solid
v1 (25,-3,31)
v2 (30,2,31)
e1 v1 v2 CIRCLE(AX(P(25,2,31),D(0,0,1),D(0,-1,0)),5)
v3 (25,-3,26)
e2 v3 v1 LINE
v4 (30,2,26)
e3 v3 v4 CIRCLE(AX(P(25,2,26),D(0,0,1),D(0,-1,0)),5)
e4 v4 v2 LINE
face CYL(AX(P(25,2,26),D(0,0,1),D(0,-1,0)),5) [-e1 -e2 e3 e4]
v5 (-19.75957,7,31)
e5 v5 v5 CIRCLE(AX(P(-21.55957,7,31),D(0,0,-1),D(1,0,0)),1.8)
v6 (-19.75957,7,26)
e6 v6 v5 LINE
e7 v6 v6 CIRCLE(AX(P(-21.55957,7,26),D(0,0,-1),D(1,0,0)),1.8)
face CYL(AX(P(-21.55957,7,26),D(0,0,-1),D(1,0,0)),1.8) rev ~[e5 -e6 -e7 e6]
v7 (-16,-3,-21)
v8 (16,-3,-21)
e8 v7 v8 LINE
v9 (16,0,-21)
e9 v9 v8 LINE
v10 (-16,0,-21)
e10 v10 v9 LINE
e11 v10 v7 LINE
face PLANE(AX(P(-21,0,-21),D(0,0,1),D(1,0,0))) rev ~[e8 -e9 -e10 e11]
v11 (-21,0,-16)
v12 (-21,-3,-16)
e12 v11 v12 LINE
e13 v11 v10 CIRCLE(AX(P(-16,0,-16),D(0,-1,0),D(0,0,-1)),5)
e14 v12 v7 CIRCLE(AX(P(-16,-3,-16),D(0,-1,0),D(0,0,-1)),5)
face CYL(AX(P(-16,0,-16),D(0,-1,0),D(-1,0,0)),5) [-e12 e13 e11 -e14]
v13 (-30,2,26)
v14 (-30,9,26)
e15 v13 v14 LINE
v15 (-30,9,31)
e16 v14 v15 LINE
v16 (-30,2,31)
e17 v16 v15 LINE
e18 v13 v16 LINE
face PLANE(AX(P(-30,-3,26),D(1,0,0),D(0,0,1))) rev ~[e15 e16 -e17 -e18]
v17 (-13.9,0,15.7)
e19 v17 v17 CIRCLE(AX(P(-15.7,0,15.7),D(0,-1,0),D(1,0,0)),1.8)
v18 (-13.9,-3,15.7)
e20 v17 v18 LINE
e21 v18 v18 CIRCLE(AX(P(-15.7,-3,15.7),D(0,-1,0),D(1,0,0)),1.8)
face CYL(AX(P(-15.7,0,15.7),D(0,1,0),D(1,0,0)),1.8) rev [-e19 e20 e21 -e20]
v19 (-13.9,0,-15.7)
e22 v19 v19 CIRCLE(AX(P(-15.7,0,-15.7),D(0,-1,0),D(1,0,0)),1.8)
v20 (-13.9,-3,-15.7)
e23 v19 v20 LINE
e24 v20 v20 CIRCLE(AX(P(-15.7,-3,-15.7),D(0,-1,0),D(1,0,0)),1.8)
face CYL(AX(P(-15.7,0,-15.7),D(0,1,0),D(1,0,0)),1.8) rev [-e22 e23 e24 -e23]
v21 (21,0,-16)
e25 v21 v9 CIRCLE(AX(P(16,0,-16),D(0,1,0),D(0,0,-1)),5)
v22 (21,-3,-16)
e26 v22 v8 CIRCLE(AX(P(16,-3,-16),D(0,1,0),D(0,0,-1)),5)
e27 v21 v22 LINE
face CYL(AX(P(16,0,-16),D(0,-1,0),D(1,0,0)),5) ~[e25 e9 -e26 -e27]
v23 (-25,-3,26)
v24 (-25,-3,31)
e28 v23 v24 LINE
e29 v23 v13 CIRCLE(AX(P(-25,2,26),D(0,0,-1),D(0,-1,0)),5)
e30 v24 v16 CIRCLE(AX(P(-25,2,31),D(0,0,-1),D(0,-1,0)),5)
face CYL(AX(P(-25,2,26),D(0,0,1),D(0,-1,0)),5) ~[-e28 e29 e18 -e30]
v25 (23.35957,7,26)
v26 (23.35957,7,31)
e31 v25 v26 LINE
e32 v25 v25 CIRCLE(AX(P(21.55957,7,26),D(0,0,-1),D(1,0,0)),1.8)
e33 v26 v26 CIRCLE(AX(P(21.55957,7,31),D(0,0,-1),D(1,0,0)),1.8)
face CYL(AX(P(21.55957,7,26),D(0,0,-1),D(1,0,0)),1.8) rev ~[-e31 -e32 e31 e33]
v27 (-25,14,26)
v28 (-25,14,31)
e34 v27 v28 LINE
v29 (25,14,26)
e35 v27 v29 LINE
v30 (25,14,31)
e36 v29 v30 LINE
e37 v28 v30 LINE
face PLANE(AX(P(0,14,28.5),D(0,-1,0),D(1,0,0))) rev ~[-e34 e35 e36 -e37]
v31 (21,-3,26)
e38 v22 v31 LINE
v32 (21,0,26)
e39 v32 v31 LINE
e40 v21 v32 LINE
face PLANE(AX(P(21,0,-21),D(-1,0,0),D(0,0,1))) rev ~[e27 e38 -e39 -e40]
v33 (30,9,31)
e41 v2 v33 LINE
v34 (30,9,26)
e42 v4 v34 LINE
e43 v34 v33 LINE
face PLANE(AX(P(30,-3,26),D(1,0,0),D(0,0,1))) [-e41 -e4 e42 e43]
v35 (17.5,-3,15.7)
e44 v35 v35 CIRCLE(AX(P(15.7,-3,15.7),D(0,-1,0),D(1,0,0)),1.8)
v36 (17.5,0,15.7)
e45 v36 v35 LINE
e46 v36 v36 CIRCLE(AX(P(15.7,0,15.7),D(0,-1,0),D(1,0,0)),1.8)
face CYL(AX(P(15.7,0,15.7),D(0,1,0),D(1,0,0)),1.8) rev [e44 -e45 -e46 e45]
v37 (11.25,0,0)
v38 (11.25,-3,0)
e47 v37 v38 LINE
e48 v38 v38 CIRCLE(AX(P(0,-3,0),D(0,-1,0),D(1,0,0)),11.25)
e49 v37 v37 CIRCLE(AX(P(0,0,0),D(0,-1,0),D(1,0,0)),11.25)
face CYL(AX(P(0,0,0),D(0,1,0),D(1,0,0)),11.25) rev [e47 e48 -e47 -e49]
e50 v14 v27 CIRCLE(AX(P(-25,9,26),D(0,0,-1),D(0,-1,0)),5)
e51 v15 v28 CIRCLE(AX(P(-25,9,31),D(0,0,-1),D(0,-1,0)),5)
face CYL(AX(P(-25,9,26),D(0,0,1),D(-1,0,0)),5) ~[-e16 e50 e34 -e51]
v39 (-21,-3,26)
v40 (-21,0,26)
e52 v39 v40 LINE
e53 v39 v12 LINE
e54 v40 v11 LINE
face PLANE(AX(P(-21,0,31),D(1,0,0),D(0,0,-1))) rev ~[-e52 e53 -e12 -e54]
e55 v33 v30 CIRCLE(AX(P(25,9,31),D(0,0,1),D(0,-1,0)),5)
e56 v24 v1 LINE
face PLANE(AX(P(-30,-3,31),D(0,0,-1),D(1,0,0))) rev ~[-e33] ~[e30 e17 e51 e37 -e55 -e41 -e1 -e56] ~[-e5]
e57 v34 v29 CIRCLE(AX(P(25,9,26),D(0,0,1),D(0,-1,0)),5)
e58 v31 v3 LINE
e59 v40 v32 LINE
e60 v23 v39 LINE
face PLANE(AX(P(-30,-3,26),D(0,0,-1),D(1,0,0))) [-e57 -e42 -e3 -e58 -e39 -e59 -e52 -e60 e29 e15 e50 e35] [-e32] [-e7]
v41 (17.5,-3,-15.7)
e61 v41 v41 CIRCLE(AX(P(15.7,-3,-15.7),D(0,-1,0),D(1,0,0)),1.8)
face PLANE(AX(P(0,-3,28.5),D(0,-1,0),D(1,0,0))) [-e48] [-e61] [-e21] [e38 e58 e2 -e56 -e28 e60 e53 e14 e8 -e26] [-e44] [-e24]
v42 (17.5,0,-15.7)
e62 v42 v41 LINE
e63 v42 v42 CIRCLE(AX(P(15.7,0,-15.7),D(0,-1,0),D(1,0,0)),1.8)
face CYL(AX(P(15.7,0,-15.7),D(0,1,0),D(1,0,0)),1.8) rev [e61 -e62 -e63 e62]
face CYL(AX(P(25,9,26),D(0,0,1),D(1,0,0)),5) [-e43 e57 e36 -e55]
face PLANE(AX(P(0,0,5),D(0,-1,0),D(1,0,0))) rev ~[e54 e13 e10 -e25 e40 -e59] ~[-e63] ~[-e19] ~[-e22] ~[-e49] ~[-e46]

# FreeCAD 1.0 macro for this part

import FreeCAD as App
import Part
import Sketcher

V = App.Vector


def edges_at(feature, points):
    """Names of the edges that pass closest to the given points."""
    edges = feature.Shape.Edges
    near = lambda p: min(range(len(edges)), key=lambda i: edges[i].distToShape(Part.Vertex(*p))[0])
    return sorted({f"Edge{near(p) + 1}" for p in points})

doc = App.newDocument("Part")
body = doc.addObject("PartDesign::Body", "Body")

sketch1 = body.newObject("Sketcher::SketchObject", "Sketch")
sketch1.AttachmentSupport = (doc.getObject("XZ_Plane"), [""])
sketch1.MapMode = "FlatFace"
sketch1.addGeometry(Part.LineSegment(V(-21, -21, 0), V(21, -21, 0)), False)
sketch1.addGeometry(Part.LineSegment(V(21, -21, 0), V(21, 31, 0)), False)
sketch1.addGeometry(Part.LineSegment(V(21, 31, 0), V(-21, 31, 0)), False)
sketch1.addGeometry(Part.LineSegment(V(-21, 31, 0), V(-21, -21, 0)), False)
sketch1.addGeometry(Part.Circle(V(-15.7, -15.7, 0), V(0, 0, 1), 1.8), False)
sketch1.addGeometry(Part.Circle(V(15.7, -15.7, 0), V(0, 0, 1), 1.8), False)
sketch1.addGeometry(Part.Circle(V(-15.7, 15.7, 0), V(0, 0, 1), 1.8), False)
sketch1.addGeometry(Part.Circle(V(0, 0, 0), V(0, 0, 1), 11.25), False)
sketch1.addGeometry(Part.Circle(V(15.7, 15.7, 0), V(0, 0, 1), 1.8), False)
sketch1.addConstraint(Sketcher.Constraint("Coincident", 0, 2, 1, 1))
sketch1.addConstraint(Sketcher.Constraint("Coincident", 1, 2, 2, 1))
sketch1.addConstraint(Sketcher.Constraint("Coincident", 2, 2, 3, 1))
sketch1.addConstraint(Sketcher.Constraint("Coincident", 3, 2, 0, 1))
sketch1.addConstraint(Sketcher.Constraint("Horizontal", 0))
sketch1.addConstraint(Sketcher.Constraint("Vertical", 1))
sketch1.addConstraint(Sketcher.Constraint("Horizontal", 2))
sketch1.addConstraint(Sketcher.Constraint("Vertical", 3))
sketch1.addConstraint(Sketcher.Constraint("Coincident", 7, 3, -1, 1))
sketch1.addConstraint(Sketcher.Constraint("Equal", 4, 5))
sketch1.addConstraint(Sketcher.Constraint("Equal", 5, 6))
sketch1.addConstraint(Sketcher.Constraint("Equal", 6, 8))
sketch1.addConstraint(Sketcher.Constraint("Symmetric", 5, 3, 6, 3, -1, 1))
sketch1.addConstraint(Sketcher.Constraint("Symmetric", 4, 3, 8, 3, -1, 1))
sketch1.addConstraint(Sketcher.Constraint("Symmetric", 4, 3, 5, 3, -2))
sketch1.addConstraint(Sketcher.Constraint("Diameter", 4, 3.6))
sketch1.addConstraint(Sketcher.Constraint("Diameter", 7, 22.5))
sketch1.addConstraint(Sketcher.Constraint("DistanceX", 0, 1, 0, 2, 42.0))
sketch1.addConstraint(Sketcher.Constraint("DistanceY", 1, 1, 1, 2, 52.0))
sketch1.addConstraint(Sketcher.Constraint("DistanceX", -1, 1, 0, 2, 21.0))
sketch1.addConstraint(Sketcher.Constraint("DistanceY", 0, 2, -1, 1, 21.0))
sketch1.addConstraint(Sketcher.Constraint("DistanceX", 4, 3, -1, 1, 15.7))
sketch1.addConstraint(Sketcher.Constraint("DistanceY", 4, 3, -1, 1, 15.7))
pad1 = body.newObject("PartDesign::Pad", "Pad")
pad1.Profile = sketch1
pad1.Length = 3

sketch2 = body.newObject("Sketcher::SketchObject", "Sketch001")
sketch2.AttachmentSupport = (doc.getObject("XZ_Plane"), [""])
sketch2.MapMode = "FlatFace"
sketch2.AttachmentOffset = App.Placement(V(0, 0, 3), App.Rotation())
sketch2.addGeometry(Part.LineSegment(V(-30, 31, 0), V(-30, 26, 0)), False)
sketch2.addGeometry(Part.LineSegment(V(-30, 26, 0), V(30, 26, 0)), False)
sketch2.addGeometry(Part.LineSegment(V(30, 26, 0), V(30, 31, 0)), False)
sketch2.addGeometry(Part.LineSegment(V(30, 31, 0), V(-30, 31, 0)), False)
sketch2.addConstraint(Sketcher.Constraint("Coincident", 0, 2, 1, 1))
sketch2.addConstraint(Sketcher.Constraint("Coincident", 1, 2, 2, 1))
sketch2.addConstraint(Sketcher.Constraint("Coincident", 2, 2, 3, 1))
sketch2.addConstraint(Sketcher.Constraint("Coincident", 3, 2, 0, 1))
sketch2.addConstraint(Sketcher.Constraint("Vertical", 0))
sketch2.addConstraint(Sketcher.Constraint("Horizontal", 1))
sketch2.addConstraint(Sketcher.Constraint("Vertical", 2))
sketch2.addConstraint(Sketcher.Constraint("Horizontal", 3))
sketch2.addConstraint(Sketcher.Constraint("DistanceX", 1, 1, 1, 2, 60.0))
sketch2.addConstraint(Sketcher.Constraint("DistanceY", 0, 2, 0, 1, 5.0))
sketch2.addConstraint(Sketcher.Constraint("DistanceX", 0, 2, -1, 1, 30.0))
sketch2.addConstraint(Sketcher.Constraint("DistanceY", -1, 1, 0, 2, 26.0))
pad2 = body.newObject("PartDesign::Pad", "Pad001")
pad2.Profile = sketch2
pad2.Length = 17
pad2.Reversed = True

sketch3 = body.newObject("Sketcher::SketchObject", "Sketch002")
sketch3.AttachmentSupport = (doc.getObject("XY_Plane"), [""])
sketch3.MapMode = "FlatFace"
sketch3.AttachmentOffset = App.Placement(V(0, 0, 26), App.Rotation())
sketch3.addGeometry(Part.Circle(V(-21.55957, 7, 0), V(0, 0, 1), 1.8), False)
sketch3.addGeometry(Part.Circle(V(21.55957, 7, 0), V(0, 0, 1), 1.8), False)
sketch3.addConstraint(Sketcher.Constraint("Equal", 0, 1))
sketch3.addConstraint(Sketcher.Constraint("Symmetric", 0, 3, 1, 3, -2))
sketch3.addConstraint(Sketcher.Constraint("Diameter", 0, 3.6))
sketch3.addConstraint(Sketcher.Constraint("DistanceY", -1, 1, 0, 3, 7.0))
sketch3.addConstraint(Sketcher.Constraint("DistanceX", 0, 3, -1, 1, 21.55957))
pocket1 = body.newObject("PartDesign::Pocket", "Pocket")
pocket1.Profile = sketch3
pocket1.Type = "ThroughAll"
pocket1.Reversed = True
doc.recompute()

fillet = body.newObject("PartDesign::Fillet", "Fillet")
fillet.Base = (pocket1, edges_at(pocket1, [(21, -1.5, -21), (-21, -1.5, -21)]))
fillet.Radius = 5
doc.recompute()

fillet2 = body.newObject("PartDesign::Fillet", "Fillet001")
fillet2.Base = (fillet, edges_at(fillet, [
    (-30, -3, 28.5),
    (-30, 14, 28.5),
    (30, -3, 28.5),
    (30, 14, 28.5),
]))
fillet2.Radius = 5

doc.recompute()
